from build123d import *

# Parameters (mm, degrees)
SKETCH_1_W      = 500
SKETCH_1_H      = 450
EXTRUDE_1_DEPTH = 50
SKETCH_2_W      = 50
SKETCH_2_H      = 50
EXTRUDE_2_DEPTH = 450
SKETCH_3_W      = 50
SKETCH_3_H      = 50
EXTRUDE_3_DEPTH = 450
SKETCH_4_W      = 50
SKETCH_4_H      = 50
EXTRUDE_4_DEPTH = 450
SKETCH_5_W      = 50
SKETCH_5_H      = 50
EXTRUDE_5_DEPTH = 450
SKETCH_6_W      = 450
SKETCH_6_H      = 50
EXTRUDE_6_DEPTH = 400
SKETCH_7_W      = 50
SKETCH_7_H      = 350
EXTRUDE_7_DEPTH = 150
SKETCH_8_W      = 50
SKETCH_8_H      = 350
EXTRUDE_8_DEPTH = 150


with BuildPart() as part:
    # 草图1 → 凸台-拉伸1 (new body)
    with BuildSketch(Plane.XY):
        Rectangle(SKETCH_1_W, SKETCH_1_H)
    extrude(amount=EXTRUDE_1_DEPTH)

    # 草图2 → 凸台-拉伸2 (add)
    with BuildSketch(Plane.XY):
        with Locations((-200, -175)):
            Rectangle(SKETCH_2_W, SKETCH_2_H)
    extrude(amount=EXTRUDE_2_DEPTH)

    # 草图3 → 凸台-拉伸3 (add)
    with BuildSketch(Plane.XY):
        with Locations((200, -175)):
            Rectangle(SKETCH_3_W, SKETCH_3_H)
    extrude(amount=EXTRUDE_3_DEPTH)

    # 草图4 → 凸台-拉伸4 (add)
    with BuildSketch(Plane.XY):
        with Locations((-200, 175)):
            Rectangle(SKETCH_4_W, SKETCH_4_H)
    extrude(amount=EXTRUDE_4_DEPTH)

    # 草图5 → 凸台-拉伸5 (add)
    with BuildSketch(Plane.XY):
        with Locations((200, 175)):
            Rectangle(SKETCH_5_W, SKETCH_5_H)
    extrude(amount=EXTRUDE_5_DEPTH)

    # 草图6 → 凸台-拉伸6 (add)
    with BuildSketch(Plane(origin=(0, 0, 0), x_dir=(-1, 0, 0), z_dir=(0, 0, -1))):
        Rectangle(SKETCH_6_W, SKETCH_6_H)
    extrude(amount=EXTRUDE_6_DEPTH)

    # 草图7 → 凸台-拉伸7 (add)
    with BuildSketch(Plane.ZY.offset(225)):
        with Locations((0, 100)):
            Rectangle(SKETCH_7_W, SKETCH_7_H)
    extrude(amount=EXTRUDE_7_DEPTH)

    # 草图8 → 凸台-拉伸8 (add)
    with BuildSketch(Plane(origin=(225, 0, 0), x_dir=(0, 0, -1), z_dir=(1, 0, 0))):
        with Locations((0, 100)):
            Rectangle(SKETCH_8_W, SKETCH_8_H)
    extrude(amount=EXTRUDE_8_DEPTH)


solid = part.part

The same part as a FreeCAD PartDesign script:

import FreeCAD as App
import Part
import Sketcher

V = App.Vector


def add_polygon(sketch, points):
    """Adds a closed chain of lines whose ends are joined by coincident constraints."""
    first, n = sketch.GeometryCount, len(points)
    for a, b in zip(points, points[1:] + points[:1]):
        sketch.addGeometry(Part.LineSegment(App.Vector(*a, 0), App.Vector(*b, 0)), False)
    for i in range(n):
        sketch.addConstraint(Sketcher.Constraint("Coincident", first + i, 2, first + (i + 1) % n, 1))

doc = App.newDocument("Part")
body = doc.addObject("PartDesign::Body", "Body")

# Sketch on XY plane
sketch1 = doc.addObject("Sketcher::SketchObject", "Sketch")
body.addObject(sketch1)
sketch1.AttachmentSupport = (doc.XY_Plane, [""])
sketch1.MapMode = "FlatFace"
add_polygon(sketch1, [(-250, 225), (-250, -225), (250, -225), (250, 225)])  # lines 0-3
sketch1.addConstraint(Sketcher.Constraint("Vertical", 0))
sketch1.addConstraint(Sketcher.Constraint("Horizontal", 1))
sketch1.addConstraint(Sketcher.Constraint("Vertical", 2))
sketch1.addConstraint(Sketcher.Constraint("Horizontal", 3))
sketch1.addConstraint(Sketcher.Constraint("Symmetric", 0, 2, 2, 2, -1, 1))
sketch1.addConstraint(Sketcher.Constraint("DistanceX", 1, 1, 1, 2, 500.0))
sketch1.addConstraint(Sketcher.Constraint("DistanceY", 0, 2, 0, 1, 450.0))
pad1 = doc.addObject("PartDesign::Pad", "Pad")
body.addObject(pad1)
pad1.Profile = sketch1
pad1.Length = 50

# Sketch on XY plane
sketch2 = doc.addObject("Sketcher::SketchObject", "Sketch001")
body.addObject(sketch2)
sketch2.AttachmentSupport = (doc.XY_Plane, [""])
sketch2.MapMode = "FlatFace"
add_polygon(sketch2, [(-225, -150), (-225, -200), (-175, -200), (-175, -150)])  # lines 0-3
sketch2.addConstraint(Sketcher.Constraint("Vertical", 0))
sketch2.addConstraint(Sketcher.Constraint("Horizontal", 1))
sketch2.addConstraint(Sketcher.Constraint("Vertical", 2))
sketch2.addConstraint(Sketcher.Constraint("Horizontal", 3))
sketch2.addConstraint(Sketcher.Constraint("Equal", 3, 0))
sketch2.addConstraint(Sketcher.Constraint("DistanceX", 1, 1, 1, 2, 50.0))
sketch2.addConstraint(Sketcher.Constraint("DistanceX", 0, 2, -1, 1, 225.0))
sketch2.addConstraint(Sketcher.Constraint("DistanceY", 0, 2, -1, 1, 200.0))
pad2 = doc.addObject("PartDesign::Pad", "Pad001")
body.addObject(pad2)
pad2.Profile = sketch2
pad2.Length = 450

# Sketch on XY plane
sketch3 = doc.addObject("Sketcher::SketchObject", "Sketch002")
body.addObject(sketch3)
sketch3.AttachmentSupport = (doc.XY_Plane, [""])
sketch3.MapMode = "FlatFace"
add_polygon(sketch3, [(175, -150), (175, -200), (225, -200), (225, -150)])  # lines 0-3
sketch3.addConstraint(Sketcher.Constraint("Vertical", 0))
sketch3.addConstraint(Sketcher.Constraint("Horizontal", 1))
sketch3.addConstraint(Sketcher.Constraint("Vertical", 2))
sketch3.addConstraint(Sketcher.Constraint("Horizontal", 3))
sketch3.addConstraint(Sketcher.Constraint("Equal", 3, 0))
sketch3.addConstraint(Sketcher.Constraint("DistanceX", 1, 1, 1, 2, 50.0))
sketch3.addConstraint(Sketcher.Constraint("DistanceX", -1, 1, 0, 2, 175.0))
sketch3.addConstraint(Sketcher.Constraint("DistanceY", 0, 2, -1, 1, 200.0))
pad3 = doc.addObject("PartDesign::Pad", "Pad002")
body.addObject(pad3)
pad3.Profile = sketch3
pad3.Length = 450

# Sketch on XY plane
sketch4 = doc.addObject("Sketcher::SketchObject", "Sketch003")
body.addObject(sketch4)
sketch4.AttachmentSupport = (doc.XY_Plane, [""])
sketch4.MapMode = "FlatFace"
add_polygon(sketch4, [(-225, 200), (-225, 150), (-175, 150), (-175, 200)])  # lines 0-3
sketch4.addConstraint(Sketcher.Constraint("Vertical", 0))
sketch4.addConstraint(Sketcher.Constraint("Horizontal", 1))
sketch4.addConstraint(Sketcher.Constraint("Vertical", 2))
sketch4.addConstraint(Sketcher.Constraint("Horizontal", 3))
sketch4.addConstraint(Sketcher.Constraint("Equal", 3, 0))
sketch4.addConstraint(Sketcher.Constraint("DistanceX", 1, 1, 1, 2, 50.0))
sketch4.addConstraint(Sketcher.Constraint("DistanceX", 0, 2, -1, 1, 225.0))
sketch4.addConstraint(Sketcher.Constraint("DistanceY", -1, 1, 0, 2, 150.0))
pad4 = doc.addObject("PartDesign::Pad", "Pad003")
body.addObject(pad4)
pad4.Profile = sketch4
pad4.Length = 450

# Sketch on XY plane
sketch5 = doc.addObject("Sketcher::SketchObject", "Sketch004")
body.addObject(sketch5)
sketch5.AttachmentSupport = (doc.XY_Plane, [""])
sketch5.MapMode = "FlatFace"
add_polygon(sketch5, [(175, 200), (175, 150), (225, 150), (225, 200)])  # lines 0-3
sketch5.addConstraint(Sketcher.Constraint("Vertical", 0))
sketch5.addConstraint(Sketcher.Constraint("Horizontal", 1))
sketch5.addConstraint(Sketcher.Constraint("Vertical", 2))
sketch5.addConstraint(Sketcher.Constraint("Horizontal", 3))
sketch5.addConstraint(Sketcher.Constraint("Equal", 3, 0))
sketch5.addConstraint(Sketcher.Constraint("DistanceX", 1, 1, 1, 2, 50.0))
sketch5.addConstraint(Sketcher.Constraint("DistanceX", -1, 1, 0, 2, 175.0))
sketch5.addConstraint(Sketcher.Constraint("DistanceY", -1, 1, 0, 2, 150.0))
pad5 = doc.addObject("PartDesign::Pad", "Pad004")
body.addObject(pad5)
pad5.Profile = sketch5
pad5.Length = 450

# Sketch on XY plane
sketch6 = doc.addObject("Sketcher::SketchObject", "Sketch005")
body.addObject(sketch6)
sketch6.AttachmentSupport = (doc.XY_Plane, [""])
sketch6.MapMode = "FlatFace"
add_polygon(sketch6, [(225, 25), (225, -25), (-225, -25), (-225, 25)])  # lines 0-3
sketch6.addConstraint(Sketcher.Constraint("Vertical", 0))
sketch6.addConstraint(Sketcher.Constraint("Horizontal", 1))
sketch6.addConstraint(Sketcher.Constraint("Vertical", 2))
sketch6.addConstraint(Sketcher.Constraint("Horizontal", 3))
sketch6.addConstraint(Sketcher.Constraint("Symmetric", 0, 2, 2, 2, -1, 1))
sketch6.addConstraint(Sketcher.Constraint("DistanceX", 1, 2, 1, 1, 450.0))
sketch6.addConstraint(Sketcher.Constraint("DistanceY", 0, 2, 0, 1, 50.0))
pad6 = doc.addObject("PartDesign::Pad", "Pad005")
body.addObject(pad6)
pad6.Profile = sketch6
pad6.Length = 400
pad6.Reversed = True

# Sketch on YZ plane
sketch7 = doc.addObject("Sketcher::SketchObject", "Sketch006")
body.addObject(sketch7)
sketch7.AttachmentSupport = (doc.YZ_Plane, [""])
sketch7.MapMode = "FlatFace"
sketch7.AttachmentOffset = App.Placement(V(0, 0, -225), App.Rotation())
add_polygon(sketch7, [(275, -25), (-75, -25), (-75, 25), (275, 25)])  # lines 0-3
sketch7.addConstraint(Sketcher.Constraint("Horizontal", 0))
sketch7.addConstraint(Sketcher.Constraint("Vertical", 1))
sketch7.addConstraint(Sketcher.Constraint("Horizontal", 2))
sketch7.addConstraint(Sketcher.Constraint("Vertical", 3))
sketch7.addConstraint(Sketcher.Constraint("DistanceX", 0, 2, 0, 1, 350.0))
sketch7.addConstraint(Sketcher.Constraint("DistanceY", 1, 1, 1, 2, 50.0))
sketch7.addConstraint(Sketcher.Constraint("DistanceX", 0, 2, -1, 1, 75.0))
sketch7.addConstraint(Sketcher.Constraint("DistanceY", 0, 2, -1, 1, 25.0))
pad7 = doc.addObject("PartDesign::Pad", "Pad006")
body.addObject(pad7)
pad7.Profile = sketch7
pad7.Length = 150
pad7.Reversed = True

# Sketch on YZ plane
sketch8 = doc.addObject("Sketcher::SketchObject", "Sketch007")
body.addObject(sketch8)
sketch8.AttachmentSupport = (doc.YZ_Plane, [""])
sketch8.MapMode = "FlatFace"
sketch8.AttachmentOffset = App.Placement(V(0, 0, 225), App.Rotation())
add_polygon(sketch8, [(275, 25), (-75, 25), (-75, -25), (275, -25)])  # lines 0-3
sketch8.addConstraint(Sketcher.Constraint("Horizontal", 0))
sketch8.addConstraint(Sketcher.Constraint("Vertical", 1))
sketch8.addConstraint(Sketcher.Constraint("Horizontal", 2))
sketch8.addConstraint(Sketcher.Constraint("Vertical", 3))
sketch8.addConstraint(Sketcher.Constraint("DistanceX", 0, 2, 0, 1, 350.0))
sketch8.addConstraint(Sketcher.Constraint("DistanceY", 1, 2, 1, 1, 50.0))
sketch8.addConstraint(Sketcher.Constraint("DistanceX", 0, 2, -1, 1, 75.0))
sketch8.addConstraint(Sketcher.Constraint("DistanceY", -1, 1, 0, 2, 25.0))
pad8 = doc.addObject("PartDesign::Pad", "Pad007")
body.addObject(pad8)
pad8.Profile = sketch8
pad8.Length = 150

doc.recompute()
